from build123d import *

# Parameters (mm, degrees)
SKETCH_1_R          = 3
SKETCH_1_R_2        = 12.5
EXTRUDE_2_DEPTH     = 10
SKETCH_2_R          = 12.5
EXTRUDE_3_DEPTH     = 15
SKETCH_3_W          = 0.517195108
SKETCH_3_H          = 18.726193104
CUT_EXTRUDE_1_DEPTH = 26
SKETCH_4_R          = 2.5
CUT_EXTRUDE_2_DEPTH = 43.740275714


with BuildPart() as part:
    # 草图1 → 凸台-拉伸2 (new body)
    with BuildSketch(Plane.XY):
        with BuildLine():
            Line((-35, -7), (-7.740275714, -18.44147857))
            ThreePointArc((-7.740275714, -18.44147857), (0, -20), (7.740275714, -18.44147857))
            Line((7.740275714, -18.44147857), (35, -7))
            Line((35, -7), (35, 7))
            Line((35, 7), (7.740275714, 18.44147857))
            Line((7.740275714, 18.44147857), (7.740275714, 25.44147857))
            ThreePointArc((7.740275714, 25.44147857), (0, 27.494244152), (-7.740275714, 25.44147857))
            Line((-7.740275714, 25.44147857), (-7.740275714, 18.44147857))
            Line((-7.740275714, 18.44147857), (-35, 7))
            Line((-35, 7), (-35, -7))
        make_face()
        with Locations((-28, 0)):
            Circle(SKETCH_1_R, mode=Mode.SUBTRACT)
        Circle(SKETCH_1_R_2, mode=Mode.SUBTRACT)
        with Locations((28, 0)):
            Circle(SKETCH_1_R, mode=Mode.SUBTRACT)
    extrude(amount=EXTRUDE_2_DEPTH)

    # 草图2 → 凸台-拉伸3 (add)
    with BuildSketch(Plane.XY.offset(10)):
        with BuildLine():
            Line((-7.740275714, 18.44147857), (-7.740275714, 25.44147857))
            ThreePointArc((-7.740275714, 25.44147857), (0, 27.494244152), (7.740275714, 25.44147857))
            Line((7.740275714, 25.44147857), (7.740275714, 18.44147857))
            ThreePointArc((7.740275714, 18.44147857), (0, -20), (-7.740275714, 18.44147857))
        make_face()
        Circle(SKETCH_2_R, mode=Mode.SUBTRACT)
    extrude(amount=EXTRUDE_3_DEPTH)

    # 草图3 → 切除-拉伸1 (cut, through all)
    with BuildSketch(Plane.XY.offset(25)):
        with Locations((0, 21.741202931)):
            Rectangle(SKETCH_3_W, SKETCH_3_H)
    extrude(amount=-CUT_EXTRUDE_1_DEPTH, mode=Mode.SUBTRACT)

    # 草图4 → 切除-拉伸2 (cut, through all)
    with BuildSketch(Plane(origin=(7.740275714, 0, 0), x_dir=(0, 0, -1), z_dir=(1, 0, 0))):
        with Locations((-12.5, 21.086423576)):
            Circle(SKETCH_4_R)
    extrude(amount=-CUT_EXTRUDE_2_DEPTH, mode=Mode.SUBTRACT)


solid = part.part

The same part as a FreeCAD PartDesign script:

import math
import FreeCAD as App
import Part
import Sketcher
from FreeCAD import Vector

doc = App.newDocument("Part")
body = doc.addObject("PartDesign::Body", "Body")

# Sketch on XY plane
sketch1 = doc.addObject("Sketcher::SketchObject", "Sketch")
body.addObject(sketch1)
sketch1.AttachmentSupport = (doc.XY_Plane, [""])
sketch1.MapMode = "FlatFace"
sketch1.addGeometry([
    Part.LineSegment(Vector(-35, -7, 0), Vector(-7.740276, -18.441479, 0)),  # 0
    Part.ArcOfCircle(Part.Circle(Vector(0, 0, 0), Vector(0, 0, 1), 20), math.radians(-112.768816), math.radians(-67.231184)),  # 1
    Part.LineSegment(Vector(7.740276, -18.441479, 0), Vector(35, -7, 0)),  # 2
    Part.LineSegment(Vector(35, -7, 0), Vector(35, 7, 0)),  # 3
    Part.LineSegment(Vector(35, 7, 0), Vector(7.740276, 18.441479, 0)),  # 4
    Part.LineSegment(Vector(7.740276, 18.441479, 0), Vector(7.740276, 25.441479, 0)),  # 5
    Part.ArcOfCircle(Part.Circle(Vector(0, 11.874897, 0), Vector(0, 0, 1), 15.619347), math.radians(60.293517), math.radians(119.706483)),  # 6
    Part.LineSegment(Vector(-7.740276, 25.441479, 0), Vector(-7.740276, 18.441479, 0)),  # 7
    Part.LineSegment(Vector(-7.740276, 18.441479, 0), Vector(-35, 7, 0)),  # 8
    Part.LineSegment(Vector(-35, 7, 0), Vector(-35, -7, 0)),  # 9
    Part.Circle(Vector(-28, 0, 0), Vector(0, 0, 1), 3),  # 10
    Part.Circle(Vector(0, 0, 0), Vector(0, 0, 1), 12.5),  # 11
    Part.Circle(Vector(28, 0, 0), Vector(0, 0, 1), 3),  # 12
], False)
sketch1.addConstraint([
    Sketcher.Constraint("Tangent", 0, 2, 1, 1),
    Sketcher.Constraint("Tangent", 1, 2, 2, 1),
    Sketcher.Constraint("Coincident", 2, 2, 3, 1),
    Sketcher.Constraint("Coincident", 3, 2, 4, 1),
    Sketcher.Constraint("Coincident", 4, 2, 5, 1),
    Sketcher.Constraint("Coincident", 5, 2, 6, 1),
    Sketcher.Constraint("Coincident", 6, 2, 7, 1),
    Sketcher.Constraint("Coincident", 7, 2, 8, 1),
    Sketcher.Constraint("Coincident", 8, 2, 9, 1),
    Sketcher.Constraint("Coincident", 9, 2, 0, 1),
    Sketcher.Constraint("Vertical", 3),
    Sketcher.Constraint("Vertical", 5),
    Sketcher.Constraint("Vertical", 7),
    Sketcher.Constraint("Vertical", 9),
    Sketcher.Constraint("Coincident", 1, 3, -1, 1),
    Sketcher.Constraint("Coincident", 11, 3, -1, 1),
    Sketcher.Constraint("Equal", 10, 12),
    Sketcher.Constraint("Symmetric", 10, 3, 12, 3, -1, 1),
    Sketcher.Constraint("Symmetric", 0, 2, 4, 2, -1, 1),
    Sketcher.Constraint("Symmetric", 1, 2, 7, 2, -1, 1),
    Sketcher.Constraint("Symmetric", 2, 2, 8, 2, -1, 1),
    Sketcher.Constraint("Symmetric", 5, 2, 6, 2, -2),
    Sketcher.Constraint("PointOnObject", 10, 3, -1),
    Sketcher.Constraint("Parallel", 0, 4),
    Sketcher.Constraint("Diameter", 10, 6.0),
    Sketcher.Constraint("Diameter", 11, 25.0),
    Sketcher.Constraint("Radius", 1, 20.0),
    Sketcher.Constraint("DistanceY", 3, 1, 3, 2, 14.0),
    Sketcher.Constraint("DistanceY", 5, 1, 5, 2, 7.0),
    Sketcher.Constraint("DistanceX", 10, 3, -1, 1, 28.0),
    Sketcher.Constraint("DistanceX", -1, 1, 2, 2, 35.0),
    Sketcher.Constraint("Radius", 6, 15.619347),
])
pad1 = doc.addObject("PartDesign::Pad", "Pad")
body.addObject(pad1)
pad1.Profile = sketch1
pad1.Length = 10

# Sketch on XY plane
sketch2 = doc.addObject("Sketcher::SketchObject", "Sketch001")
body.addObject(sketch2)
sketch2.AttachmentSupport = (doc.XY_Plane, [""])
sketch2.MapMode = "FlatFace"
sketch2.AttachmentOffset = App.Placement(Vector(0, 0, 10), App.Rotation())
sketch2.addGeometry([
    Part.LineSegment(Vector(-7.740276, 25.441479, 0), Vector(-7.740276, 18.441479, 0)),  # 0
    Part.ArcOfCircle(Part.Circle(Vector(0, 0, 0), Vector(0, 0, 1), 20), math.radians(112.768816), math.radians(427.231184)),  # 1
    Part.LineSegment(Vector(7.740276, 18.441479, 0), Vector(7.740276, 25.441479, 0)),  # 2
    Part.ArcOfCircle(Part.Circle(Vector(0, 11.874897, 0), Vector(0, 0, 1), 15.619347), math.radians(60.293517), math.radians(119.706483)),  # 3
    Part.Circle(Vector(0, 0, 0), Vector(0, 0, 1), 12.5),  # 4
], False)
sketch2.addConstraint([
    Sketcher.Constraint("Coincident", 0, 2, 1, 1),
    Sketcher.Constraint("Coincident", 1, 2, 2, 1),
    Sketcher.Constraint("Coincident", 2, 2, 3, 1),
    Sketcher.Constraint("Coincident", 3, 2, 0, 1),
    Sketcher.Constraint("Vertical", 0),
    Sketcher.Constraint("Vertical", 2),
    Sketcher.Constraint("Coincident", 1, 3, -1, 1),
    Sketcher.Constraint("Coincident", 4, 3, -1, 1),
    Sketcher.Constraint("Symmetric", 2, 2, 3, 2, -2),
    Sketcher.Constraint("Diameter", 4, 25.0),
    Sketcher.Constraint("Radius", 1, 20.0),
    Sketcher.Constraint("DistanceY", 0, 2, 0, 1, 7.0),
    Sketcher.Constraint("Radius", 3, 15.619347),
    Sketcher.Constraint("DistanceY", -1, 1, 0, 2, 18.441479),
])
pad2 = doc.addObject("PartDesign::Pad", "Pad001")
body.addObject(pad2)
pad2.Profile = sketch2
pad2.Length = 15

# Sketch on XY plane
sketch3 = doc.addObject("Sketcher::SketchObject", "Sketch002")
body.addObject(sketch3)
sketch3.AttachmentSupport = (doc.XY_Plane, [""])
sketch3.MapMode = "FlatFace"
sketch3.AttachmentOffset = App.Placement(Vector(0, 0, 25), App.Rotation())
sketch3.addGeometry([
    Part.LineSegment(Vector(-0.258598, 31.104299, 0), Vector(-0.258598, 12.378106, 0)),
    Part.LineSegment(Vector(-0.258598, 12.378106, 0), Vector(0.258598, 12.378106, 0)),
    Part.LineSegment(Vector(0.258598, 12.378106, 0), Vector(0.258598, 31.104299, 0)),
    Part.LineSegment(Vector(0.258598, 31.104299, 0), Vector(-0.258598, 31.104299, 0)),
], False)
sketch3.addConstraint([
    Sketcher.Constraint("Coincident", 0, 2, 1, 1),
    Sketcher.Constraint("Coincident", 1, 2, 2, 1),
    Sketcher.Constraint("Coincident", 2, 2, 3, 1),
    Sketcher.Constraint("Coincident", 3, 2, 0, 1),
    Sketcher.Constraint("Vertical", 0),
    Sketcher.Constraint("Horizontal", 1),
    Sketcher.Constraint("Vertical", 2),
    Sketcher.Constraint("Horizontal", 3),
    Sketcher.Constraint("DistanceY", -1, 1, 2, 2, 31.104299),
    Sketcher.Constraint("DistanceX", 1, 1, 1, 2, 0.517195),
    Sketcher.Constraint("DistanceY", 0, 2, 0, 1, 18.726193),
    Sketcher.Constraint("DistanceX", 0, 2, -1, 1, 0.258598),
])
pocket1 = doc.addObject("PartDesign::Pocket", "Pocket")
body.addObject(pocket1)
pocket1.Profile = sketch3
pocket1.Type = "ThroughAll"

# Sketch on YZ plane
sketch4 = doc.addObject("Sketcher::SketchObject", "Sketch003")
body.addObject(sketch4)
sketch4.AttachmentSupport = (doc.YZ_Plane, [""])
sketch4.MapMode = "FlatFace"
sketch4.AttachmentOffset = App.Placement(Vector(0, 0, 7.740276), App.Rotation())
sketch4.addGeometry(Part.Circle(Vector(21.086424, 12.5, 0), Vector(0, 0, 1), 2.5), False)
sketch4.addConstraint([
    Sketcher.Constraint("Diameter", 0, 5.0),
    Sketcher.Constraint("DistanceY", -1, 1, 0, 3, 12.5),
    Sketcher.Constraint("DistanceX", -1, 1, 0, 3, 21.086424),
])
pocket2 = doc.addObject("PartDesign::Pocket", "Pocket001")
body.addObject(pocket2)
pocket2.Profile = sketch4
pocket2.Type = "ThroughAll"

doc.recompute()
